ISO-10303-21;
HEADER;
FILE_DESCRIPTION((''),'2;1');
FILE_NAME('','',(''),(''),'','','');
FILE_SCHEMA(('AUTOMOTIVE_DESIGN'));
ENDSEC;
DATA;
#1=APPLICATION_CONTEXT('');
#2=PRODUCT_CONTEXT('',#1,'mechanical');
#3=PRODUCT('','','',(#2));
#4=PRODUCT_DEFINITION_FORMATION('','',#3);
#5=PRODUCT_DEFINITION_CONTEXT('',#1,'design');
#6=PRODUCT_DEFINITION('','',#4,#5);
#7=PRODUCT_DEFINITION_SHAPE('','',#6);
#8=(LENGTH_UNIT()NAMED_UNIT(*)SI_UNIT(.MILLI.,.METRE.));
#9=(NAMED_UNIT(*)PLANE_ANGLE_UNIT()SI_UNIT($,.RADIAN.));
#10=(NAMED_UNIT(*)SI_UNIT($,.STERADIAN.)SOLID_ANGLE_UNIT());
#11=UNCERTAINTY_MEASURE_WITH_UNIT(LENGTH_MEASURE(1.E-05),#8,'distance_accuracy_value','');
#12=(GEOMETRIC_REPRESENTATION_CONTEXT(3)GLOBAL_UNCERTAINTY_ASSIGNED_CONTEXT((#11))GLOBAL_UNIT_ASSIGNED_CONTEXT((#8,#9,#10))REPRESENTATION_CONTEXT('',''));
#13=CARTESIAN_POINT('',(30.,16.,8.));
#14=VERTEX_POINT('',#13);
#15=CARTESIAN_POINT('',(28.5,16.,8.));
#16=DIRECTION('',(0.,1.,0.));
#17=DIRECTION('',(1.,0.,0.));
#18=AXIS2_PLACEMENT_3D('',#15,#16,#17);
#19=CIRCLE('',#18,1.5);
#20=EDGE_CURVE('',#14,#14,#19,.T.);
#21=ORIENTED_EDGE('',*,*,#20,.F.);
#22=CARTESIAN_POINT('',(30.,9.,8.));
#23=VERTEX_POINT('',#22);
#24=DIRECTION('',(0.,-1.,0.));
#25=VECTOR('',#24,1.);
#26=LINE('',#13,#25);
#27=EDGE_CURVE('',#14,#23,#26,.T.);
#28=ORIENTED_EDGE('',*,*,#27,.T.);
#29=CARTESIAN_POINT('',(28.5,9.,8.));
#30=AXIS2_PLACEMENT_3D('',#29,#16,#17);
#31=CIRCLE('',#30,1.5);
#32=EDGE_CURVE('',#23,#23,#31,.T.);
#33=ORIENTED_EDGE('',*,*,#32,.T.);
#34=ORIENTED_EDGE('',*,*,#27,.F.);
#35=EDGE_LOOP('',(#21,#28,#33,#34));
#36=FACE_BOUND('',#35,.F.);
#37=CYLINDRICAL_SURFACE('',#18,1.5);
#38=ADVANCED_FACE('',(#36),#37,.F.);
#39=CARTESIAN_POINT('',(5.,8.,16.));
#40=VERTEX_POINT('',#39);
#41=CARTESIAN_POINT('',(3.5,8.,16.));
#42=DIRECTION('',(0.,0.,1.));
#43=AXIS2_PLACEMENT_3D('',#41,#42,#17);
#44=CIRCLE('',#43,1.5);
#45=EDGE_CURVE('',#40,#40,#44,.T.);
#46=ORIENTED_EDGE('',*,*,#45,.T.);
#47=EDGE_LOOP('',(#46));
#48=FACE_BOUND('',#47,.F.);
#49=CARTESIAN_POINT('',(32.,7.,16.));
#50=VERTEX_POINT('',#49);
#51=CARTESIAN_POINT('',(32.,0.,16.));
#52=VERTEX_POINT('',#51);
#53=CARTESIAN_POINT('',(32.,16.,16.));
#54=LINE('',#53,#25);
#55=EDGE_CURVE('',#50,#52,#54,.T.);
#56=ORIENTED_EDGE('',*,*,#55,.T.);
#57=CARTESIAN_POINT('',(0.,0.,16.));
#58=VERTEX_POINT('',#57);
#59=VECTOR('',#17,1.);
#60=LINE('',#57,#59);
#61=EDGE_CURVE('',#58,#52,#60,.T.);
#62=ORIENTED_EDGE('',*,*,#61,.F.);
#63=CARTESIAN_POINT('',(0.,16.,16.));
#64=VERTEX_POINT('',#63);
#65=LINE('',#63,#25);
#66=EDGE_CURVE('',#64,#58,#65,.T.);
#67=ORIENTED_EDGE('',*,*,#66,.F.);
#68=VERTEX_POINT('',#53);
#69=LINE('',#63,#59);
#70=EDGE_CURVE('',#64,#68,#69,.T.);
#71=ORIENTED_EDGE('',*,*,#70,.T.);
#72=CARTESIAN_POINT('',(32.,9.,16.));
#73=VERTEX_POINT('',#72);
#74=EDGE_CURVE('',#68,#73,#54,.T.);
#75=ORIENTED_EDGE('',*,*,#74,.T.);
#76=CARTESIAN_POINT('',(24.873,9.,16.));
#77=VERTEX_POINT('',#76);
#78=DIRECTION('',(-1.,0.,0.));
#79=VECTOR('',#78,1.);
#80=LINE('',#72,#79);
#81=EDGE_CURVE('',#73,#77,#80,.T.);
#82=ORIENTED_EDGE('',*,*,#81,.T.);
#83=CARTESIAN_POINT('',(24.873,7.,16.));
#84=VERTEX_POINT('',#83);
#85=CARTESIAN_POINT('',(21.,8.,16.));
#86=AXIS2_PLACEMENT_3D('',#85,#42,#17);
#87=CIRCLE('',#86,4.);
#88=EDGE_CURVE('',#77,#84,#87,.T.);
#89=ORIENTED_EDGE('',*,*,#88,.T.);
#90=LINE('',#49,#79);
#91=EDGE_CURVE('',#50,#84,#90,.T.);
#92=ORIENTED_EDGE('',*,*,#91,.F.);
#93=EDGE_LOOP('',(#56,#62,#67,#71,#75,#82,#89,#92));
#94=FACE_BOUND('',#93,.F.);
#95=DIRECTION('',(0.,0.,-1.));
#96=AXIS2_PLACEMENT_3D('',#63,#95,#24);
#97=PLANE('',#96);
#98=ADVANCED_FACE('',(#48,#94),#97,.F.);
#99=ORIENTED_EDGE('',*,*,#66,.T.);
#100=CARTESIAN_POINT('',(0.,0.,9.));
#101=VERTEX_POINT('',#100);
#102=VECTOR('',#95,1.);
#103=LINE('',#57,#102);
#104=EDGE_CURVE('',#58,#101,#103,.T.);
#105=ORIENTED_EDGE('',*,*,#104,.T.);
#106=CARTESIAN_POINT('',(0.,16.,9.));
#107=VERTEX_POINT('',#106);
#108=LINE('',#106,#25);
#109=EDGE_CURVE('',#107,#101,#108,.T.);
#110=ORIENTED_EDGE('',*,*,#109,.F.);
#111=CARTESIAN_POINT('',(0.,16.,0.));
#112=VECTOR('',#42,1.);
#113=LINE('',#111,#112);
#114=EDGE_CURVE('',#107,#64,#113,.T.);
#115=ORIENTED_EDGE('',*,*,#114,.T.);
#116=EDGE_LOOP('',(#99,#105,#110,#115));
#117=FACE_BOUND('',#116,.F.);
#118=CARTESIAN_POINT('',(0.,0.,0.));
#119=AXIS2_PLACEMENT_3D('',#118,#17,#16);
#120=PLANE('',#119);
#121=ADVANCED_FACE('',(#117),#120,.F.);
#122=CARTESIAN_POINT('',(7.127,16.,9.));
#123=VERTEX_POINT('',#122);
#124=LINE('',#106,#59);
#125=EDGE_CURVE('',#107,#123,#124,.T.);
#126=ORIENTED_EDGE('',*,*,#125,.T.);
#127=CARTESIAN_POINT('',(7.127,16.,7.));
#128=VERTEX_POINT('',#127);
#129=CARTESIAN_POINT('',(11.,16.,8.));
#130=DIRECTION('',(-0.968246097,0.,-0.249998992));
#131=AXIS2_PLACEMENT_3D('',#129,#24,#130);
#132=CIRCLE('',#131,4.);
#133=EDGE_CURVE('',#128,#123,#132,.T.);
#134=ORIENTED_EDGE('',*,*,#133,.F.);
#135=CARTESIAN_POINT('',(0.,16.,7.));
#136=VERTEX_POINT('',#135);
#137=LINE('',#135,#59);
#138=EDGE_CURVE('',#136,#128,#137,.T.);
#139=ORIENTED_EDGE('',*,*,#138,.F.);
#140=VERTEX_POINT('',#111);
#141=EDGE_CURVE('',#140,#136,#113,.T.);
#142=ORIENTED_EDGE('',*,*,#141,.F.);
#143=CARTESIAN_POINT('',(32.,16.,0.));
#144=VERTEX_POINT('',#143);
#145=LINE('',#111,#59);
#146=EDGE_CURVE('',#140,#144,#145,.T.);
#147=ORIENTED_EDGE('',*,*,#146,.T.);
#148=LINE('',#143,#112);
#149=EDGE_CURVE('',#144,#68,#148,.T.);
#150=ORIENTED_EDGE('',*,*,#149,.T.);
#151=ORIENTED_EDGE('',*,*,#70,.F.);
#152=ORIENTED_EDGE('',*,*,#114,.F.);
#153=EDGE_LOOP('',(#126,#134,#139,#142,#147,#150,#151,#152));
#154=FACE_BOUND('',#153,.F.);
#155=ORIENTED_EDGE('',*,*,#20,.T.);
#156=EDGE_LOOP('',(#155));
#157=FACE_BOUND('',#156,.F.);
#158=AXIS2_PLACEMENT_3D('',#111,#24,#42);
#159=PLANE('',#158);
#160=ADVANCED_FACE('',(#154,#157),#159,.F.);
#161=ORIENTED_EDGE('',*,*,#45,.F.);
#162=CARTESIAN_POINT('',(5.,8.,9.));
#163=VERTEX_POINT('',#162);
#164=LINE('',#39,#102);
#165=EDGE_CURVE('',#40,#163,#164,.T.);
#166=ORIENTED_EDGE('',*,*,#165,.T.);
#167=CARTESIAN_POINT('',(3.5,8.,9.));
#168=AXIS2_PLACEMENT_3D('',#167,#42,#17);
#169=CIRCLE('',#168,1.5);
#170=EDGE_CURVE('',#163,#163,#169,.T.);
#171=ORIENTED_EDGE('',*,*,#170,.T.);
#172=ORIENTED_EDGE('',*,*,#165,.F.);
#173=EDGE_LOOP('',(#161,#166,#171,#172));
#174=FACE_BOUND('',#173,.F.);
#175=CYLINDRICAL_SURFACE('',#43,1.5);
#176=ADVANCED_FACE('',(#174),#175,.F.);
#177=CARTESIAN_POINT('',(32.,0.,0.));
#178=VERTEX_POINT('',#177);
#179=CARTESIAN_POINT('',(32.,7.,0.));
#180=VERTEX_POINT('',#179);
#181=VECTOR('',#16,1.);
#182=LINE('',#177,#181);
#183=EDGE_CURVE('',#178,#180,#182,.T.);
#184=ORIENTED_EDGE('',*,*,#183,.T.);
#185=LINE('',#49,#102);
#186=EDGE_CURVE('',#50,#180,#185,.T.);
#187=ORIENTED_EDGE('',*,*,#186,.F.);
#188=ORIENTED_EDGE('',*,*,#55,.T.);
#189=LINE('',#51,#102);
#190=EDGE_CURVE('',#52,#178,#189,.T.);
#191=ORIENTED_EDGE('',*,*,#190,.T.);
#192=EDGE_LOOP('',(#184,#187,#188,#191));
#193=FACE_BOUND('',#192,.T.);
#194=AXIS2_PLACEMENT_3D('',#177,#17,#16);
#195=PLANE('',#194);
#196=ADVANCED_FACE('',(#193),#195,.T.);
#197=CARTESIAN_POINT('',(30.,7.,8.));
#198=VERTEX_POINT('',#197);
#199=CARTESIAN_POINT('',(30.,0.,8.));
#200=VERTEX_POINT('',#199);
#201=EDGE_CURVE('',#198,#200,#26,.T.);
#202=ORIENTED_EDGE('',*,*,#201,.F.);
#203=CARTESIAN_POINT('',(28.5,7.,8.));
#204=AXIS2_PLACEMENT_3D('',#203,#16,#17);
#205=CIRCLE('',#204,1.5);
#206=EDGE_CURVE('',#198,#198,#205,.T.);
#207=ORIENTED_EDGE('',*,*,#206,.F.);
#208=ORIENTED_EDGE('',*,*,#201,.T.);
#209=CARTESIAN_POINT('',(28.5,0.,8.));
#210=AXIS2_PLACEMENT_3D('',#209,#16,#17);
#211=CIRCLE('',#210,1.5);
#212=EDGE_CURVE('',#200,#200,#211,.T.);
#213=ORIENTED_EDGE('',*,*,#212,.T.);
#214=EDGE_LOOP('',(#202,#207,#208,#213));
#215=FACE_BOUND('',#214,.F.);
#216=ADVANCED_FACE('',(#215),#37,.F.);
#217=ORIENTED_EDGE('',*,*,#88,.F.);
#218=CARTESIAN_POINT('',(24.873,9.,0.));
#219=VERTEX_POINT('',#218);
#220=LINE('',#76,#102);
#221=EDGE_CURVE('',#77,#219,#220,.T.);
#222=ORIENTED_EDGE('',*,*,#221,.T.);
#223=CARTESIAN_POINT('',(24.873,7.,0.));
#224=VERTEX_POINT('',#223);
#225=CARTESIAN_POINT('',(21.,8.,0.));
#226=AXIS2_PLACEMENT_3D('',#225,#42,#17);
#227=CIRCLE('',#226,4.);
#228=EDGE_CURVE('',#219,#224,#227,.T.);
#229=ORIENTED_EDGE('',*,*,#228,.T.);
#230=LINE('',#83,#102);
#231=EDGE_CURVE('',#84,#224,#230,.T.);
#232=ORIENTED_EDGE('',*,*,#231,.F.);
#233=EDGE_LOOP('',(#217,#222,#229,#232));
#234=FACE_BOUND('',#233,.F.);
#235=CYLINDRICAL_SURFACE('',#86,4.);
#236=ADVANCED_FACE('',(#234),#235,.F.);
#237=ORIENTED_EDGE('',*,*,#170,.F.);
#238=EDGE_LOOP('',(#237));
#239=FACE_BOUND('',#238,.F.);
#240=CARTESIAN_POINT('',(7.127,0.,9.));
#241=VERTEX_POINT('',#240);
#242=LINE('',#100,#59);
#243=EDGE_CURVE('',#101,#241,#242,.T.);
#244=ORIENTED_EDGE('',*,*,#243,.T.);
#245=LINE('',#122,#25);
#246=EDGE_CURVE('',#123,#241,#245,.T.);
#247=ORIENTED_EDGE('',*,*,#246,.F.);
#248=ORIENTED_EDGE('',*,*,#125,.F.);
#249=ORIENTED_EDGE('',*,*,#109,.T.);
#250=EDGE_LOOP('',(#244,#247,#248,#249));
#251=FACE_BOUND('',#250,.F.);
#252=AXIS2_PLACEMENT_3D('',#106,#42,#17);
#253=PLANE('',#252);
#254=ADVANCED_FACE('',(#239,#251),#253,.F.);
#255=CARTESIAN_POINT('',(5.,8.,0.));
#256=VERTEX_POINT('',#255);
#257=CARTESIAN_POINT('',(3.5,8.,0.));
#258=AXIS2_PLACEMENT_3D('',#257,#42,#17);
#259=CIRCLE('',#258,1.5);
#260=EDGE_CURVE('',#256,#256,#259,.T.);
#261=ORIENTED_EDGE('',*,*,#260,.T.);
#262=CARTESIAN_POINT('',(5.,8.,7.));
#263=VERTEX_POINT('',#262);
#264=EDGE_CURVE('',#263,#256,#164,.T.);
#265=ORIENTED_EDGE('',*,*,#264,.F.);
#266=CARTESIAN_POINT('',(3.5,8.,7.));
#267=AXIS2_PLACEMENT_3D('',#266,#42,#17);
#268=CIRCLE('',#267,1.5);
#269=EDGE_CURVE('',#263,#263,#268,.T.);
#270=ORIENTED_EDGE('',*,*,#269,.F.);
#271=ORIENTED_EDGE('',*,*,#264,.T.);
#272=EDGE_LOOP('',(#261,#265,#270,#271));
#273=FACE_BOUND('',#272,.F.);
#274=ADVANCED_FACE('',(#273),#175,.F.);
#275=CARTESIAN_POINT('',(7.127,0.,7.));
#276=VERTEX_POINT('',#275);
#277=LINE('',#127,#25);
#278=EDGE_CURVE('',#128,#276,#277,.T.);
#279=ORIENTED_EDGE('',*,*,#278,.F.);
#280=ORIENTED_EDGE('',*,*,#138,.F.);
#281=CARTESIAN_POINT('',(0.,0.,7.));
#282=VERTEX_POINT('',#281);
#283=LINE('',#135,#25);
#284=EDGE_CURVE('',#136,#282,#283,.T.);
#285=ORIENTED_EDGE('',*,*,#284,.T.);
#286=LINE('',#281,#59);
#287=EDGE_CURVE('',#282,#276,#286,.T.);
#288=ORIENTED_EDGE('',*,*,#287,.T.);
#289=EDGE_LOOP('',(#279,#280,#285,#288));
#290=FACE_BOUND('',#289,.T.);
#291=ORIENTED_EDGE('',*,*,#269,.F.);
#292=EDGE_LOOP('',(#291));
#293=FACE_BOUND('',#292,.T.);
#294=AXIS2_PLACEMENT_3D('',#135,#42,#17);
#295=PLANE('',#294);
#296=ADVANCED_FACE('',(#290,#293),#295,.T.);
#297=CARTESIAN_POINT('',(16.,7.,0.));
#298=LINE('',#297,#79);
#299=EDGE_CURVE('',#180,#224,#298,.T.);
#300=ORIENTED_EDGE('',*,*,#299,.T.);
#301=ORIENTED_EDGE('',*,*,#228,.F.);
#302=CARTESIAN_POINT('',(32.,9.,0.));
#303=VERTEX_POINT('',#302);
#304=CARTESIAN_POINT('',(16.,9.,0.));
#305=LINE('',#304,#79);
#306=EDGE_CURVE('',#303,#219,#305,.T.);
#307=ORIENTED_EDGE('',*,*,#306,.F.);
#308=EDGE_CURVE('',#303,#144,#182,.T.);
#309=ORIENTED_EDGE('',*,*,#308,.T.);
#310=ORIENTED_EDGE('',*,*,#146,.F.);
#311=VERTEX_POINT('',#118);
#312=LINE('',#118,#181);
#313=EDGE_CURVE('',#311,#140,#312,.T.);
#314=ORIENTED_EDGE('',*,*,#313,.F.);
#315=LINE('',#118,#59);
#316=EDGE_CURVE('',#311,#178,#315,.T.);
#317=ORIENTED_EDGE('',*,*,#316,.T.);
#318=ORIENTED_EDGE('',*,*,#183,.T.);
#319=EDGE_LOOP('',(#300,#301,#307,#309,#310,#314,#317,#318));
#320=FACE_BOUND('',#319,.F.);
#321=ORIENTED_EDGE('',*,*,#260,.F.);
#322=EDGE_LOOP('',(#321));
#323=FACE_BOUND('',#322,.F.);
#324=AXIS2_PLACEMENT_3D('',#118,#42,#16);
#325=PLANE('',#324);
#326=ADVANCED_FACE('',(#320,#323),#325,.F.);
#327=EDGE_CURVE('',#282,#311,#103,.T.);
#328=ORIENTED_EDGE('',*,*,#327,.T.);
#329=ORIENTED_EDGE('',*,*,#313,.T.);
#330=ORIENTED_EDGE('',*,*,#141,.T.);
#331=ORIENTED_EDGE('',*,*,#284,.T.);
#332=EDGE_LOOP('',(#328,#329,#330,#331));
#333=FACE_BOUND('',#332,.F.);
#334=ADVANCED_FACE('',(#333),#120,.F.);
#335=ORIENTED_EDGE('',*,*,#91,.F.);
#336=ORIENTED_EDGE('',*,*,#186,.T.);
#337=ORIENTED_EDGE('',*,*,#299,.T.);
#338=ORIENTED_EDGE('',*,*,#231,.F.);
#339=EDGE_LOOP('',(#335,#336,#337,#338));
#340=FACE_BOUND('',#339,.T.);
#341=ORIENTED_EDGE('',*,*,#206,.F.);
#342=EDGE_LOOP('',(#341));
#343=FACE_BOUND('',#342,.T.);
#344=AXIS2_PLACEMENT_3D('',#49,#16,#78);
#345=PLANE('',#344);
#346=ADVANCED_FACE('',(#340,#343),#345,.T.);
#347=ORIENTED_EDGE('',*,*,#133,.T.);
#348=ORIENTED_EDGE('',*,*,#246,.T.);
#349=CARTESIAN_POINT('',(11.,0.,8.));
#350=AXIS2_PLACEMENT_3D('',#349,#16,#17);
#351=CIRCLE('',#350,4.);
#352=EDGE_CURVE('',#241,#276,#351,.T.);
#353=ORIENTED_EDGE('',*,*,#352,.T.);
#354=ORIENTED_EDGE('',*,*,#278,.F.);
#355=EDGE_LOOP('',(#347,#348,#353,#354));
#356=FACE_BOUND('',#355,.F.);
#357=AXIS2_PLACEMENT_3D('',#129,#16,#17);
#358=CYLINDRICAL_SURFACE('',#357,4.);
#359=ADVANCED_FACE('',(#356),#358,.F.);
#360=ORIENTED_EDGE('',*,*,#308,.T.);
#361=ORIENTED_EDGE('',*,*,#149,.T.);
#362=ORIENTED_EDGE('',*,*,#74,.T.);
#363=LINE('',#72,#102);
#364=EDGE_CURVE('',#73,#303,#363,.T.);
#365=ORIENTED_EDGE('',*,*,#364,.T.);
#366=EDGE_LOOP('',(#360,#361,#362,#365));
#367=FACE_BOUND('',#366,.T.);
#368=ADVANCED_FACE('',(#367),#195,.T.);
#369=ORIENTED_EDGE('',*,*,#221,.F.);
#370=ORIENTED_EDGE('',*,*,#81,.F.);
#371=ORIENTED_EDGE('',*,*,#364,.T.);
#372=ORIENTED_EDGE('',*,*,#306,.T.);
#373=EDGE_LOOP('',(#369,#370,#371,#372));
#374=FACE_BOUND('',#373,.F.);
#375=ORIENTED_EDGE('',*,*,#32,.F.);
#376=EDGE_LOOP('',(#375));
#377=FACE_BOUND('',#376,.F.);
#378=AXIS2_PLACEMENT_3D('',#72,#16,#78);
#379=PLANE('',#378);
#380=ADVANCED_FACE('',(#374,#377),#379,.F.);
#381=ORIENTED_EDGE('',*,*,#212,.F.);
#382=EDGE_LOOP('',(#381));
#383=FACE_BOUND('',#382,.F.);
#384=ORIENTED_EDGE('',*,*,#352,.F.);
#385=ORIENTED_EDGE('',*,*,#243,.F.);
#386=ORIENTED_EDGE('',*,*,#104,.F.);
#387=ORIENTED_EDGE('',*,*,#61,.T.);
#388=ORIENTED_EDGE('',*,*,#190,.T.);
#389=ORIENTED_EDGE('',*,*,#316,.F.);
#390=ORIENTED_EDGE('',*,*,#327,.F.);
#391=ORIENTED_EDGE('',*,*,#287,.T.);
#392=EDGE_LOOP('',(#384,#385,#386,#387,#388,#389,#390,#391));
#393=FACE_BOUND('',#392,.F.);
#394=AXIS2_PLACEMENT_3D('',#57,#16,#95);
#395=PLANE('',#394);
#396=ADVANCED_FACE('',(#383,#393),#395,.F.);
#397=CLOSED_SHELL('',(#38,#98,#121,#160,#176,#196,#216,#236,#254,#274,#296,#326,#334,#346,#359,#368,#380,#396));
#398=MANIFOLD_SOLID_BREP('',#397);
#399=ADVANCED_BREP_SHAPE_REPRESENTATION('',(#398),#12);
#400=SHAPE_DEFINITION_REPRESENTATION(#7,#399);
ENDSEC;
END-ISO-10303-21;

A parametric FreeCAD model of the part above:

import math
import FreeCAD as App
import Part
import Sketcher

V = App.Vector

doc = App.newDocument("Part")
body = doc.addObject("PartDesign::Body", "Body")

# Sketch on YZ plane
sketch1 = doc.addObject("Sketcher::SketchObject", "Sketch")
body.addObject(sketch1)
sketch1.AttachmentSupport = (doc.YZ_Plane, [""])
sketch1.MapMode = "FlatFace"
sketch1.addGeometry([
    Part.LineSegment(V(0, 16, 0), V(0, 0, 0)),
    Part.LineSegment(V(0, 0, 0), V(16, 0, 0)),
    Part.LineSegment(V(16, 0, 0), V(16, 16, 0)),
    Part.LineSegment(V(16, 16, 0), V(0, 16, 0)),
], False)
sketch1.addConstraint([
    Sketcher.Constraint("Coincident", 0, 2, 1, 1),
    Sketcher.Constraint("Coincident", 1, 2, 2, 1),
    Sketcher.Constraint("Coincident", 2, 2, 3, 1),
    Sketcher.Constraint("Coincident", 3, 2, 0, 1),
    Sketcher.Constraint("Vertical", 0),
    Sketcher.Constraint("Horizontal", 1),
    Sketcher.Constraint("Vertical", 2),
    Sketcher.Constraint("Horizontal", 3),
    Sketcher.Constraint("Coincident", 0, 2, -1, 1),
    Sketcher.Constraint("Equal", 3, 0),
    Sketcher.Constraint("DistanceX", 1, 1, 1, 2, 16.0),
])
pad1 = doc.addObject("PartDesign::Pad", "Pad")
body.addObject(pad1)
pad1.Profile = sketch1
pad1.Length = 32

# Sketch on XY plane
sketch2 = doc.addObject("Sketcher::SketchObject", "Sketch001")
body.addObject(sketch2)
sketch2.AttachmentSupport = (doc.XY_Plane, [""])
sketch2.MapMode = "FlatFace"
sketch2.AttachmentOffset = App.Placement(V(0, 0, 16), App.Rotation())
sketch2.addGeometry([
    Part.LineSegment(V(32, 9, 0), V(24.9, 9, 0)),  # 0
    Part.ArcOfCircle(Part.Circle(V(21, 8, 0), V(0, 0, 1), 4), math.radians(14), math.radians(346)),  # 1
    Part.LineSegment(V(24.9, 7, 0), V(32, 7, 0)),  # 2
    Part.LineSegment(V(32, 7, 0), V(32, 9, 0)),  # 3
    Part.Circle(V(3.5, 8, 0), V(0, 0, 1), 1.5),  # 4
], False)
sketch2.addConstraint([
    Sketcher.Constraint("Coincident", 0, 2, 1, 1),
    Sketcher.Constraint("Coincident", 1, 2, 2, 1),
    Sketcher.Constraint("Coincident", 2, 2, 3, 1),
    Sketcher.Constraint("Coincident", 3, 2, 0, 1),
    Sketcher.Constraint("Horizontal", 0),
    Sketcher.Constraint("Horizontal", 2),
    Sketcher.Constraint("Vertical", 3),
    Sketcher.Constraint("Horizontal", 1, 3, 4, 3),
    Sketcher.Constraint("Vertical", 0, 2, 1, 2),
    Sketcher.Constraint("Diameter", 4, 3.0),
    Sketcher.Constraint("Radius", 1, 4.0),
    Sketcher.Constraint("DistanceY", 3, 1, 3, 2, 2.0),
    Sketcher.Constraint("DistanceY", -1, 1, 1, 3, 8.0),
    Sketcher.Constraint("DistanceX", -1, 1, 1, 3, 21.0),
    Sketcher.Constraint("DistanceX", -1, 1, 2, 2, 32.0),
    Sketcher.Constraint("DistanceX", -1, 1, 4, 3, 3.5),
])
pocket1 = doc.addObject("PartDesign::Pocket", "Pocket")
body.addObject(pocket1)
pocket1.Profile = sketch2
pocket1.Length = 32

# Sketch on XZ plane
sketch3 = doc.addObject("Sketcher::SketchObject", "Sketch002")
body.addObject(sketch3)
sketch3.AttachmentSupport = (doc.XZ_Plane, [""])
sketch3.MapMode = "FlatFace"
sketch3.AttachmentOffset = App.Placement(V(0, 0, -16), App.Rotation())
sketch3.addGeometry([
    Part.LineSegment(V(7.1, 7, 0), V(0, 7, 0)),  # 0
    Part.LineSegment(V(0, 7, 0), V(0, 9, 0)),  # 1
    Part.LineSegment(V(0, 9, 0), V(7.1, 9, 0)),  # 2
    Part.ArcOfCircle(Part.Circle(V(11, 8, 0), V(0, 0, 1), 4), math.radians(-166), math.radians(166)),  # 3
    Part.Circle(V(28.5, 8, 0), V(0, 0, 1), 1.5),  # 4
], False)
sketch3.addConstraint([
    Sketcher.Constraint("Coincident", 0, 2, 1, 1),
    Sketcher.Constraint("Coincident", 1, 2, 2, 1),
    Sketcher.Constraint("Coincident", 2, 2, 3, 2),
    Sketcher.Constraint("Coincident", 3, 1, 0, 1),
    Sketcher.Constraint("Horizontal", 0),
    Sketcher.Constraint("Vertical", 1),
    Sketcher.Constraint("Horizontal", 2),
    Sketcher.Constraint("PointOnObject", 0, 2, -2),
    Sketcher.Constraint("Horizontal", 3, 3, 4, 3),
    Sketcher.Constraint("Vertical", 2, 2, 3, 1),
    Sketcher.Constraint("Diameter", 4, 3.0),
    Sketcher.Constraint("Radius", 3, 4.0),
    Sketcher.Constraint("DistanceY", -1, 1, 3, 3, 8.0),
    Sketcher.Constraint("DistanceY", 0, 2, 3, 3, 1.0),
    Sketcher.Constraint("DistanceX", -1, 1, 3, 3, 11.0),
    Sketcher.Constraint("DistanceX", -1, 1, 4, 3, 28.5),
])
pocket2 = doc.addObject("PartDesign::Pocket", "Pocket001")
body.addObject(pocket2)
pocket2.Profile = sketch3
pocket2.Length = 32
pocket2.Reversed = True

doc.recompute()
